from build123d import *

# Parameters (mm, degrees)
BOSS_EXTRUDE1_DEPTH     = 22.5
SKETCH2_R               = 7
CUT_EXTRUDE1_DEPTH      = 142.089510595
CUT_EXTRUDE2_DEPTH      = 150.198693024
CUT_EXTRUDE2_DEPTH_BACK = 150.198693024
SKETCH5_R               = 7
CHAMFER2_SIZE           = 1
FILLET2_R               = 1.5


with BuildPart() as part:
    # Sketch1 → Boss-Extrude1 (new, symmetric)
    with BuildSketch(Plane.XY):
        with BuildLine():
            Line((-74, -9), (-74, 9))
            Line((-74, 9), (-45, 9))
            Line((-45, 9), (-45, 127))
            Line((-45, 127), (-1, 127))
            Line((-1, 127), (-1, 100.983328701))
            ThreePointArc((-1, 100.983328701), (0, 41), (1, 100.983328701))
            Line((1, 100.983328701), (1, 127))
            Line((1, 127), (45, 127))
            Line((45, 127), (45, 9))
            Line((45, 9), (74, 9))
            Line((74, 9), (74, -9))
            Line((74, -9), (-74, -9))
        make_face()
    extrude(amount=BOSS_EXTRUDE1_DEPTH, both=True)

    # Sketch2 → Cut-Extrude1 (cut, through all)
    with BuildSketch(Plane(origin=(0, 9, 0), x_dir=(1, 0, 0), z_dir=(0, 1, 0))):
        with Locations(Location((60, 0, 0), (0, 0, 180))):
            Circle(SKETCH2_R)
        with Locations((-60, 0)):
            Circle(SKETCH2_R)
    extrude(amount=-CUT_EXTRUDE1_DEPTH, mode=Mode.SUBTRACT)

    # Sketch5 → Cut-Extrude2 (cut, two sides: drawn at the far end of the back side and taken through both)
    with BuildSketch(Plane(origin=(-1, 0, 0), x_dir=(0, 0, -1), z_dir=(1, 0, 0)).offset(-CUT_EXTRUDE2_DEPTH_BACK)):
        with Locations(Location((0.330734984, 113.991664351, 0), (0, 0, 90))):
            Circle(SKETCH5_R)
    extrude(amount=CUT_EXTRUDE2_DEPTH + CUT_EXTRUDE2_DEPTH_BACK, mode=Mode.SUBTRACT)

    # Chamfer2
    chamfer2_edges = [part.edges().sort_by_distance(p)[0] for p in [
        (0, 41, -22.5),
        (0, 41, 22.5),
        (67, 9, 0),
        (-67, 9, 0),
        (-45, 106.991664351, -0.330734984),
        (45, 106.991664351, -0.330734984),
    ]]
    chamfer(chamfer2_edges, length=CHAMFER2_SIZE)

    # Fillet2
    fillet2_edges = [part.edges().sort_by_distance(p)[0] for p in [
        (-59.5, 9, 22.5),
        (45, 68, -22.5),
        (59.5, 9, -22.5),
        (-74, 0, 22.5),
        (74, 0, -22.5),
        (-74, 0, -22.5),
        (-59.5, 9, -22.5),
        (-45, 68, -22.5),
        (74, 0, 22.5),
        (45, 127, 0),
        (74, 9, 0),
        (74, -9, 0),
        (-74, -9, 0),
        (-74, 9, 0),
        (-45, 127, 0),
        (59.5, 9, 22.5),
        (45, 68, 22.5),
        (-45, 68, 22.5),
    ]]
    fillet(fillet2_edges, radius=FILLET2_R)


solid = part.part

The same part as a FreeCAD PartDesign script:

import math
import FreeCAD as App
import Part
import Sketcher


def edges_at(feature, points):
    """Names of the edges that pass closest to the given points."""
    edges = feature.Shape.Edges
    near = lambda p: min(range(len(edges)), key=lambda i: edges[i].distToShape(Part.Vertex(*p))[0])
    return sorted({f"Edge{near(p) + 1}" for p in points})

doc = App.newDocument("Part")
params = doc.addObject("Spreadsheet::Sheet", "Params")
for row, (alias, value) in enumerate([
    ("sketch1_radius", "30 mm"),
    ("sketch1_width", "148 mm"),
    ("sketch1_width2", "29 mm"),
    ("sketch1_width3", "44 mm"),
    ("sketch1_height", "18 mm"),
    ("pad1_length", "45 mm"),
    ("sketch2_diameter", "14 mm"),
    ("sketch3_diameter", "14 mm"),
    ("chamfer_size", "1 mm"),
    ("fillet_radius", "1.5 mm"),
], start=1):
    params.set(f"A{row}", alias)
    params.set(f"B{row}", "=" + value)
    params.setAlias(f"B{row}", alias)

body = doc.addObject("PartDesign::Body", "Body")

# Sketch on XY plane
sketch1 = body.newObject("Sketcher::SketchObject", "Sketch")
sketch1.AttachmentSupport = (doc.getObject("XY_Plane"), [""])
sketch1.MapMode = "FlatFace"
sketch1.addGeometry(Part.LineSegment(App.Vector(-74, 9, 0), App.Vector(-74, -9, 0)), False)
sketch1.addGeometry(Part.LineSegment(App.Vector(-74, -9, 0), App.Vector(74, -9, 0)), False)
sketch1.addGeometry(Part.LineSegment(App.Vector(74, -9, 0), App.Vector(74, 9, 0)), False)
sketch1.addGeometry(Part.LineSegment(App.Vector(74, 9, 0), App.Vector(45, 9, 0)), False)
sketch1.addGeometry(Part.LineSegment(App.Vector(45, 9, 0), App.Vector(45, 127, 0)), False)
sketch1.addGeometry(Part.LineSegment(App.Vector(45, 127, 0), App.Vector(1, 127, 0)), False)
sketch1.addGeometry(Part.LineSegment(App.Vector(1, 127, 0), App.Vector(1, 101, 0)), False)
sketch1.addGeometry(Part.ArcOfCircle(Part.Circle(App.Vector(0, 71, 0), App.Vector(0, 0, 1), 30), math.radians(92), math.radians(448)), False)
sketch1.addGeometry(Part.LineSegment(App.Vector(-1, 101, 0), App.Vector(-1, 127, 0)), False)
sketch1.addGeometry(Part.LineSegment(App.Vector(-1, 127, 0), App.Vector(-45, 127, 0)), False)
sketch1.addGeometry(Part.LineSegment(App.Vector(-45, 127, 0), App.Vector(-45, 9, 0)), False)
sketch1.addGeometry(Part.LineSegment(App.Vector(-45, 9, 0), App.Vector(-74, 9, 0)), False)
sketch1.addConstraint(Sketcher.Constraint("Coincident", 0, 2, 1, 1))
sketch1.addConstraint(Sketcher.Constraint("Coincident", 1, 2, 2, 1))
sketch1.addConstraint(Sketcher.Constraint("Coincident", 2, 2, 3, 1))
sketch1.addConstraint(Sketcher.Constraint("Coincident", 3, 2, 4, 1))
sketch1.addConstraint(Sketcher.Constraint("Coincident", 4, 2, 5, 1))
sketch1.addConstraint(Sketcher.Constraint("Coincident", 5, 2, 6, 1))
sketch1.addConstraint(Sketcher.Constraint("Coincident", 6, 2, 7, 2))
sketch1.addConstraint(Sketcher.Constraint("Coincident", 7, 1, 8, 1))
sketch1.addConstraint(Sketcher.Constraint("Coincident", 8, 2, 9, 1))
sketch1.addConstraint(Sketcher.Constraint("Coincident", 9, 2, 10, 1))
sketch1.addConstraint(Sketcher.Constraint("Coincident", 10, 2, 11, 1))
sketch1.addConstraint(Sketcher.Constraint("Coincident", 11, 2, 0, 1))
sketch1.addConstraint(Sketcher.Constraint("Vertical", 0))
sketch1.addConstraint(Sketcher.Constraint("Horizontal", 1))
sketch1.addConstraint(Sketcher.Constraint("Vertical", 2))
sketch1.addConstraint(Sketcher.Constraint("Horizontal", 3))
sketch1.addConstraint(Sketcher.Constraint("Vertical", 4))
sketch1.addConstraint(Sketcher.Constraint("Horizontal", 5))
sketch1.addConstraint(Sketcher.Constraint("Vertical", 6))
sketch1.addConstraint(Sketcher.Constraint("Vertical", 8))
sketch1.addConstraint(Sketcher.Constraint("Horizontal", 9))
sketch1.addConstraint(Sketcher.Constraint("Vertical", 10))
sketch1.addConstraint(Sketcher.Constraint("Horizontal", 11))
sketch1.addConstraint(Sketcher.Constraint("Symmetric", 0, 2, 2, 2, -1, 1))
sketch1.addConstraint(Sketcher.Constraint("Symmetric", 6, 2, 7, 1, -2))
sketch1.addConstraint(Sketcher.Constraint("Symmetric", 4, 2, 9, 2, -2))
sketch1.addConstraint(Sketcher.Constraint("Horizontal", 3, 2, 10, 2))
sketch1.addConstraint(Sketcher.Constraint("Radius", 7, 30.0))
sketch1.addConstraint(Sketcher.Constraint("DistanceX", 1, 1, 1, 2, 148.0))
sketch1.addConstraint(Sketcher.Constraint("DistanceX", 3, 2, 3, 1, 29.0))
sketch1.addConstraint(Sketcher.Constraint("DistanceX", 5, 2, 5, 1, 44.0))
sketch1.addConstraint(Sketcher.Constraint("DistanceY", 0, 2, 0, 1, 18.0))
sketch1.addConstraint(Sketcher.Constraint("DistanceY", 4, 1, 4, 2, 118.0))
sketch1.addConstraint(Sketcher.Constraint("DistanceY", -1, 1, 7, 3, 71.0))
sketch1.setExpression("Constraints[27]", "Params.sketch1_radius")
sketch1.setExpression("Constraints[28]", "Params.sketch1_width")
sketch1.setExpression("Constraints[29]", "Params.sketch1_width2")
sketch1.setExpression("Constraints[30]", "Params.sketch1_width3")
sketch1.setExpression("Constraints[31]", "Params.sketch1_height")
pad1 = body.newObject("PartDesign::Pad", "Pad")
pad1.Profile = sketch1
pad1.setExpression("Length", "Params.pad1_length")
pad1.Midplane = True

# Sketch on XZ plane
sketch2 = body.newObject("Sketcher::SketchObject", "Sketch001")
sketch2.AttachmentSupport = (doc.getObject("XZ_Plane"), [""])
sketch2.MapMode = "FlatFace"
sketch2.AttachmentOffset = App.Placement(App.Vector(0, 0, -9), App.Rotation())
sketch2.addGeometry(Part.Circle(App.Vector(60, 0, 0), App.Vector(0, 0, 1), 7), False)
sketch2.addGeometry(Part.Circle(App.Vector(-60, 0, 0), App.Vector(0, 0, 1), 7), False)
sketch2.addConstraint(Sketcher.Constraint("Equal", 0, 1))
sketch2.addConstraint(Sketcher.Constraint("Symmetric", 0, 3, 1, 3, -1, 1))
sketch2.addConstraint(Sketcher.Constraint("PointOnObject", 0, 3, -1))
sketch2.addConstraint(Sketcher.Constraint("Diameter", 0, 14.0))
sketch2.addConstraint(Sketcher.Constraint("DistanceX", -1, 1, 0, 3, 60.0))
sketch2.setExpression("Constraints[3]", "Params.sketch2_diameter")
pocket1 = body.newObject("PartDesign::Pocket", "Pocket")
pocket1.Profile = sketch2
pocket1.Type = "ThroughAll"
pocket1.Reversed = True

# Sketch on YZ plane
sketch3 = body.newObject("Sketcher::SketchObject", "Sketch002")
sketch3.AttachmentSupport = (doc.getObject("YZ_Plane"), [""])
sketch3.MapMode = "FlatFace"
sketch3.AttachmentOffset = App.Placement(App.Vector(0, 0, -1), App.Rotation())
sketch3.addGeometry(Part.Circle(App.Vector(114, 0, 0), App.Vector(0, 0, 1), 7), False)
sketch3.addConstraint(Sketcher.Constraint("Diameter", 0, 14.0))
sketch3.addConstraint(Sketcher.Constraint("DistanceX", -1, 1, 0, 3, 113.991664))
sketch3.addConstraint(Sketcher.Constraint("DistanceY", 0, 3, -1, 1, 0.330735))
sketch3.setExpression("Constraints[0]", "Params.sketch3_diameter")
pocket2 = body.newObject("PartDesign::Pocket", "Pocket001")
pocket2.Profile = sketch3
pocket2.Type = "ThroughAll"
pocket2.Midplane = True
doc.recompute()

chamfer = body.newObject("PartDesign::Chamfer", "Chamfer")
chamfer.Base = (pocket2, edges_at(pocket2, [
    (0, 41, -22.5),
    (0, 41, 22.5),
    (67, 9, 0),
    (-67, 9, 0),
    (-45, 106.992, -0.331),
    (45, 106.992, -0.331),
]))
chamfer.setExpression("Size", "Params.chamfer_size")
doc.recompute()

fillet = body.newObject("PartDesign::Fillet", "Fillet")
fillet.Base = (chamfer, edges_at(chamfer, [
    (-59.5, 9, 22.5),
    (45, 68, -22.5),
    (59.5, 9, -22.5),
    (-74, 0, 22.5),
    (74, 0, -22.5),
    (-74, 0, -22.5),
    (-59.5, 9, -22.5),
    (-45, 68, -22.5),
    (74, 0, 22.5),
    (45, 127, 0),
    (74, 9, 0),
    (74, -9, 0),
    (-74, -9, 0),
    (-74, 9, 0),
    (-45, 127, 0),
    (59.5, 9, 22.5),
    (45, 68, 22.5),
    (-45, 68, 22.5),
]))
fillet.setExpression("Radius", "Params.fillet_radius")

doc.recompute()
